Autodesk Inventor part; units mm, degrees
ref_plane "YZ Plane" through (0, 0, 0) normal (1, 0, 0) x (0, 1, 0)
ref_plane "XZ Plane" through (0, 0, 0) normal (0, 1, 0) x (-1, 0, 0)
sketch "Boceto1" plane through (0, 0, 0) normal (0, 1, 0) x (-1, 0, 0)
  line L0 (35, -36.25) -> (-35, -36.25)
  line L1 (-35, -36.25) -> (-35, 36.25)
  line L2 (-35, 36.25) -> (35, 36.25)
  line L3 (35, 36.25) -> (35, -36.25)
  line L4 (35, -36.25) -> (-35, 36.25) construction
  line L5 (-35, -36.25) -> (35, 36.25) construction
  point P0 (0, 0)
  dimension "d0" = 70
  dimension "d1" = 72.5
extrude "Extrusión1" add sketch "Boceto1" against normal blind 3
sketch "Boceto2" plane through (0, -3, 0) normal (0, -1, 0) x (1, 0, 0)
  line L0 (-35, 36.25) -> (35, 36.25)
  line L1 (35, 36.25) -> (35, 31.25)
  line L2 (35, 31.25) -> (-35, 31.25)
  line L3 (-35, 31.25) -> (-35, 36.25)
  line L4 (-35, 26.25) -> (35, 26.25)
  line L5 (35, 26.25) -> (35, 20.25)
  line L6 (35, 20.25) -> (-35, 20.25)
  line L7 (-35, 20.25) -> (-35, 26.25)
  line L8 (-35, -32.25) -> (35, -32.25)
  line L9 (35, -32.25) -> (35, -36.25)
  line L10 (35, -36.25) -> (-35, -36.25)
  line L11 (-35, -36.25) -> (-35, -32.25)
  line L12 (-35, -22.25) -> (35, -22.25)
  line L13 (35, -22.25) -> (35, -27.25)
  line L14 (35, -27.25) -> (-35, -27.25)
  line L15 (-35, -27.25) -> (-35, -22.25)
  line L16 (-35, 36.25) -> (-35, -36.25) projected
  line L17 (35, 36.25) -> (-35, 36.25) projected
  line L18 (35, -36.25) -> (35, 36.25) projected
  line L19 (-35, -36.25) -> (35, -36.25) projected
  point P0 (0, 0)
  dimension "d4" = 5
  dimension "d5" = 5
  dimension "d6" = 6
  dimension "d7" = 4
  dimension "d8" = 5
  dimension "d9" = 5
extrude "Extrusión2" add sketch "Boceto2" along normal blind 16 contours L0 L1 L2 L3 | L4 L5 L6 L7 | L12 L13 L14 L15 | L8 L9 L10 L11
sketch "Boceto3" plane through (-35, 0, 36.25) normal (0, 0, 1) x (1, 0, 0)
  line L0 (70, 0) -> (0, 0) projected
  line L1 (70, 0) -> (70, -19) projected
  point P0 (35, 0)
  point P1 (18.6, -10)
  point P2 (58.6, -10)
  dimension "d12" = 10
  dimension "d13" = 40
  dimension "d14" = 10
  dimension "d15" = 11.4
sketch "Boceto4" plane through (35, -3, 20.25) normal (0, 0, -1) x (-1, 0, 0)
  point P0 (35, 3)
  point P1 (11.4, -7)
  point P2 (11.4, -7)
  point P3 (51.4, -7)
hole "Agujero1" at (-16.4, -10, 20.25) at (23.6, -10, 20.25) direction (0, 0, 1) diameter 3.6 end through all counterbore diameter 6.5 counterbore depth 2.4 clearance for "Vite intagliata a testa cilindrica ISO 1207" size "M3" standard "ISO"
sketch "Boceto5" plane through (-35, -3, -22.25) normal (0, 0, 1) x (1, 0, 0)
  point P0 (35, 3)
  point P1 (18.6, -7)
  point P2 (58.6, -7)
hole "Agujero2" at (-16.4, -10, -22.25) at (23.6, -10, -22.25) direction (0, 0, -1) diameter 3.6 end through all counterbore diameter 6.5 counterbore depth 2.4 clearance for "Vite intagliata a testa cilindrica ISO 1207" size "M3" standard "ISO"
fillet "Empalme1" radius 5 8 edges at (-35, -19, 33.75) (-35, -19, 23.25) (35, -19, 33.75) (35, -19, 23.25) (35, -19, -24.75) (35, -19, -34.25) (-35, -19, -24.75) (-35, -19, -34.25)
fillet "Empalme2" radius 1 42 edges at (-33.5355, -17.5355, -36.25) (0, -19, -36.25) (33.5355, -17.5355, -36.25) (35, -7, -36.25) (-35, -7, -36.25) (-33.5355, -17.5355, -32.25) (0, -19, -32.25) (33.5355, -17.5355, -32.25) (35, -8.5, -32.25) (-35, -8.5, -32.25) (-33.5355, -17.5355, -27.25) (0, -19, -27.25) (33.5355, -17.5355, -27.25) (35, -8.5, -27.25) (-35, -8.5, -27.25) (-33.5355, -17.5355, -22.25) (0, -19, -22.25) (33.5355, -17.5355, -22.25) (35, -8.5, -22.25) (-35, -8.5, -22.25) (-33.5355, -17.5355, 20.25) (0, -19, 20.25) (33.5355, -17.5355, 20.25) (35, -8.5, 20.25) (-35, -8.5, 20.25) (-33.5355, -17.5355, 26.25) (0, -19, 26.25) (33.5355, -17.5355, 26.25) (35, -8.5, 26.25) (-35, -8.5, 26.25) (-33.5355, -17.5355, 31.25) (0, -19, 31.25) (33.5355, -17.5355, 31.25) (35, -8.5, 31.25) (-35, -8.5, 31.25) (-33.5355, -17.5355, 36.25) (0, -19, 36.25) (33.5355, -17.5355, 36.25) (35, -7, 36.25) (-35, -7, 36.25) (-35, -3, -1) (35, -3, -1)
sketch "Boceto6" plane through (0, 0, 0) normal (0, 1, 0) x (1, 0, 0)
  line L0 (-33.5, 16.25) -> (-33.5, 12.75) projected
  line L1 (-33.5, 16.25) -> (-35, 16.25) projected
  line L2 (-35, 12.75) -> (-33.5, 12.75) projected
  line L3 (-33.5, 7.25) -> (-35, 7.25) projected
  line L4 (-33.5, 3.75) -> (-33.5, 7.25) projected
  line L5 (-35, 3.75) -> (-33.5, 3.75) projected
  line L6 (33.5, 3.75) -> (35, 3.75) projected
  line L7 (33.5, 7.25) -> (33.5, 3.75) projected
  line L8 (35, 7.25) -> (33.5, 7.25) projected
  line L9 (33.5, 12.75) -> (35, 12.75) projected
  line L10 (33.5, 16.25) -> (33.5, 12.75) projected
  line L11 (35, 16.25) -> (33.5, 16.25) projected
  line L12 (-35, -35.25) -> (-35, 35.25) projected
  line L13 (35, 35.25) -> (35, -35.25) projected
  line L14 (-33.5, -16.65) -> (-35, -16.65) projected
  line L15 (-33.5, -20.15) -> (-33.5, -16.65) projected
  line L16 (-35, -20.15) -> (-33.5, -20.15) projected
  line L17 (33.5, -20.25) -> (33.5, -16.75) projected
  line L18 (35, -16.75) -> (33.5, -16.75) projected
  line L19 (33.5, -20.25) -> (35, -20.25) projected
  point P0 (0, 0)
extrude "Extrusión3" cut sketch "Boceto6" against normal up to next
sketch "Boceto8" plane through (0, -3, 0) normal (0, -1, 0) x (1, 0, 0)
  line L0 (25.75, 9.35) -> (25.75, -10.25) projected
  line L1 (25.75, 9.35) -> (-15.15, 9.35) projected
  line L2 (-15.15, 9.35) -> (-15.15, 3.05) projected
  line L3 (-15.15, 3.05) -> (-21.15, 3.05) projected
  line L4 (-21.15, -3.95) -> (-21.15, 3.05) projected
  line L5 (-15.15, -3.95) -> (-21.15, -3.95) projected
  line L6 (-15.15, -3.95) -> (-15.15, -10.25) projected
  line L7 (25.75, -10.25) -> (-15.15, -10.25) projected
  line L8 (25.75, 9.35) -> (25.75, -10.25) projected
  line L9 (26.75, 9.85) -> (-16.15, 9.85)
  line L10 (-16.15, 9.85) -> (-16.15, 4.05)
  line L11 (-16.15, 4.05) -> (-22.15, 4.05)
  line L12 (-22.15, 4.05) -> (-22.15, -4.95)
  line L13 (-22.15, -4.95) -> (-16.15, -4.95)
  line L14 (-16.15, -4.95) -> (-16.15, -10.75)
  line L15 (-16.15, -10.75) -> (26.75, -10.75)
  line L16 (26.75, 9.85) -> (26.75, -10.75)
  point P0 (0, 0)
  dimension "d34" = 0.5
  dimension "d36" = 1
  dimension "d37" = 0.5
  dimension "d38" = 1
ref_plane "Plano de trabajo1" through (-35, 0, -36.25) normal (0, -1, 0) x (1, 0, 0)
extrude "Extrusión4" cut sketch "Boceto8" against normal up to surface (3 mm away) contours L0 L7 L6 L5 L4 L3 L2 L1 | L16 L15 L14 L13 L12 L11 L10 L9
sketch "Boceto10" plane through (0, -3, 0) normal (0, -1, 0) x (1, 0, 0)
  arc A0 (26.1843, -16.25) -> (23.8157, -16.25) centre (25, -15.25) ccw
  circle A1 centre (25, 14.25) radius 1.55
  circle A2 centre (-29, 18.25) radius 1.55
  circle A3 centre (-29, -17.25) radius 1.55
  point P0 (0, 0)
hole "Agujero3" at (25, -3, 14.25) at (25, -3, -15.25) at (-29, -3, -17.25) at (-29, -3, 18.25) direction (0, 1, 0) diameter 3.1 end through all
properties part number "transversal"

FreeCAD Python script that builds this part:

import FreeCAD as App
import Part
import Sketcher

V = App.Vector


def edges_at(feature, points):
    """Names of the edges that pass closest to the given points."""
    edges = feature.Shape.Edges
    near = lambda p: min(range(len(edges)), key=lambda i: edges[i].distToShape(Part.Vertex(*p))[0])
    return sorted({f"Edge{near(p) + 1}" for p in points})

doc = App.newDocument("Part")
body = doc.addObject("PartDesign::Body", "Body")

# Sketch on XZ plane
sketch1 = doc.addObject("Sketcher::SketchObject", "Sketch")
body.addObject(sketch1)
sketch1.AttachmentSupport = (doc.XZ_Plane, [""])
sketch1.MapMode = "FlatFace"
sketch1.addGeometry([
    Part.LineSegment(V(35, -36, 0), V(-35, -36, 0)),
    Part.LineSegment(V(-35, -36, 0), V(-35, 36, 0)),
    Part.LineSegment(V(-35, 36, 0), V(35, 36, 0)),
    Part.LineSegment(V(35, 36, 0), V(35, -36, 0)),
], False)
sketch1.addConstraint([
    Sketcher.Constraint("Coincident", 0, 2, 1, 1),
    Sketcher.Constraint("Coincident", 1, 2, 2, 1),
    Sketcher.Constraint("Coincident", 2, 2, 3, 1),
    Sketcher.Constraint("Coincident", 3, 2, 0, 1),
    Sketcher.Constraint("Horizontal", 0),
    Sketcher.Constraint("Vertical", 1),
    Sketcher.Constraint("Horizontal", 2),
    Sketcher.Constraint("Vertical", 3),
    Sketcher.Constraint("Symmetric", 0, 2, 2, 2, -1, 1),
    Sketcher.Constraint("DistanceX", 0, 2, 0, 1, 70.0),
    Sketcher.Constraint("DistanceY", 1, 1, 1, 2, 72.5),
])
pad1 = doc.addObject("PartDesign::Pad", "Pad")
body.addObject(pad1)
pad1.Profile = sketch1
pad1.Length = 3

# Sketch on XZ plane
sketch2 = doc.addObject("Sketcher::SketchObject", "Sketch001")
body.addObject(sketch2)
sketch2.AttachmentSupport = (doc.XZ_Plane, [""])
sketch2.MapMode = "FlatFace"
sketch2.AttachmentOffset = App.Placement(V(0, 0, 3), App.Rotation())
sketch2.addGeometry([
    Part.LineSegment(V(35, 36.2, 0), V(-35, 36.2, 0)),  # 0
    Part.LineSegment(V(-35, 36.2, 0), V(-35, 31.2, 0)),  # 1
    Part.LineSegment(V(-35, 31.2, 0), V(35, 31.2, 0)),  # 2
    Part.LineSegment(V(35, 31.2, 0), V(35, 36.2, 0)),  # 3
    Part.LineSegment(V(35, 26.2, 0), V(-35, 26.2, 0)),  # 4
    Part.LineSegment(V(-35, 26.2, 0), V(-35, 20.2, 0)),  # 5
    Part.LineSegment(V(-35, 20.2, 0), V(35, 20.2, 0)),  # 6
    Part.LineSegment(V(35, 20.2, 0), V(35, 26.2, 0)),  # 7
    Part.LineSegment(V(35, -22.2, 0), V(-35, -22.2, 0)),  # 8
    Part.LineSegment(V(-35, -22.2, 0), V(-35, -27.2, 0)),  # 9
    Part.LineSegment(V(-35, -27.2, 0), V(35, -27.2, 0)),  # 10
    Part.LineSegment(V(35, -27.2, 0), V(35, -22.2, 0)),  # 11
    Part.LineSegment(V(35, -32.2, 0), V(-35, -32.2, 0)),  # 12
    Part.LineSegment(V(-35, -32.2, 0), V(-35, -36.2, 0)),  # 13
    Part.LineSegment(V(-35, -36.2, 0), V(35, -36.2, 0)),  # 14
    Part.LineSegment(V(35, -36.2, 0), V(35, -32.2, 0)),  # 15
], False)
sketch2.addConstraint([
    Sketcher.Constraint("Coincident", 0, 2, 1, 1),
    Sketcher.Constraint("Coincident", 1, 2, 2, 1),
    Sketcher.Constraint("Coincident", 2, 2, 3, 1),
    Sketcher.Constraint("Coincident", 3, 2, 0, 1),
    Sketcher.Constraint("Coincident", 4, 2, 5, 1),
    Sketcher.Constraint("Coincident", 5, 2, 6, 1),
    Sketcher.Constraint("Coincident", 6, 2, 7, 1),
    Sketcher.Constraint("Coincident", 7, 2, 4, 1),
    Sketcher.Constraint("Coincident", 8, 2, 9, 1),
    Sketcher.Constraint("Coincident", 9, 2, 10, 1),
    Sketcher.Constraint("Coincident", 10, 2, 11, 1),
    Sketcher.Constraint("Coincident", 11, 2, 8, 1),
    Sketcher.Constraint("Coincident", 12, 2, 13, 1),
    Sketcher.Constraint("Coincident", 13, 2, 14, 1),
    Sketcher.Constraint("Coincident", 14, 2, 15, 1),
    Sketcher.Constraint("Coincident", 15, 2, 12, 1),
    Sketcher.Constraint("Horizontal", 0),
    Sketcher.Constraint("Vertical", 1),
    Sketcher.Constraint("Horizontal", 2),
    Sketcher.Constraint("Vertical", 3),
    Sketcher.Constraint("Horizontal", 4),
    Sketcher.Constraint("Vertical", 5),
    Sketcher.Constraint("Horizontal", 6),
    Sketcher.Constraint("Vertical", 7),
    Sketcher.Constraint("Horizontal", 8),
    Sketcher.Constraint("Vertical", 9),
    Sketcher.Constraint("Horizontal", 10),
    Sketcher.Constraint("Vertical", 11),
    Sketcher.Constraint("Horizontal", 12),
    Sketcher.Constraint("Vertical", 13),
    Sketcher.Constraint("Horizontal", 14),
    Sketcher.Constraint("Vertical", 15),
    Sketcher.Constraint("Symmetric", 3, 2, 13, 2, -1, 1),
    Sketcher.Constraint("Vertical", 1, 2, 4, 2),
    Sketcher.Constraint("Vertical", 3, 2, 6, 2),
    Sketcher.Constraint("Vertical", 5, 2, 8, 2),
    Sketcher.Constraint("Vertical", 7, 2, 10, 2),
    Sketcher.Constraint("Vertical", 9, 2, 12, 2),
    Sketcher.Constraint("Vertical", 11, 2, 14, 2),
    Sketcher.Constraint("Equal", 3, 9),
    Sketcher.Constraint("DistanceY", 1, 2, 1, 1, 5.0),
    Sketcher.Constraint("DistanceY", 5, 2, 5, 1, 6.0),
    Sketcher.Constraint("DistanceY", 13, 2, 13, 1, 4.0),
    Sketcher.Constraint("DistanceY", 4, 2, 1, 2, 5.0),
    Sketcher.Constraint("DistanceY", 12, 2, 9, 2, 5.0),
    Sketcher.Constraint("DistanceX", 0, 2, 0, 1, 70.0),
    Sketcher.Constraint("DistanceY", 8, 2, 5, 2, 42.5),
])
pad2 = doc.addObject("PartDesign::Pad", "Pad001")
body.addObject(pad2)
pad2.Profile = sketch2
pad2.Length = 16

# Sketch on XY plane
sketch3 = doc.addObject("Sketcher::SketchObject", "Sketch002")
body.addObject(sketch3)
sketch3.AttachmentSupport = (doc.XY_Plane, [""])
sketch3.MapMode = "FlatFace"
sketch3.AttachmentOffset = App.Placement(V(0, 0, 20.25), App.Rotation())
sketch3.addGeometry([
    Part.Circle(V(-16.4, -10, 0), V(0, 0, 1), 1.8),
    Part.Circle(V(23.6, -10, 0), V(0, 0, 1), 1.8),
], False)
sketch3.addConstraint([
    Sketcher.Constraint("Equal", 0, 1),
    Sketcher.Constraint("Horizontal", 0, 3, 1, 3),
    Sketcher.Constraint("Diameter", 0, 3.6),
    Sketcher.Constraint("DistanceY", 0, 3, -1, 1, 10.0),
    Sketcher.Constraint("DistanceX", 0, 3, 1, 3, 40.0),
    Sketcher.Constraint("DistanceX", 0, 3, -1, 1, 16.4),
])
doc.recompute()
hole = doc.addObject("PartDesign::Hole", "Hole")
body.addObject(hole)
hole.Profile = sketch3
hole.ThreadType = "None"
hole.Diameter = 3.6
hole.DepthType = "ThroughAll"
hole.HoleCutType = "Counterbore"
hole.HoleCutDiameter = 6.5
hole.HoleCutDepth = 2.4
hole.Reversed = True

# Sketch on XY plane
sketch4 = doc.addObject("Sketcher::SketchObject", "Sketch003")
body.addObject(sketch4)
sketch4.AttachmentSupport = (doc.XY_Plane, [""])
sketch4.MapMode = "FlatFace"
sketch4.AttachmentOffset = App.Placement(V(0, 0, -22.25), App.Rotation())
sketch4.addGeometry([
    Part.Circle(V(-16.4, -10, 0), V(0, 0, 1), 1.8),
    Part.Circle(V(23.6, -10, 0), V(0, 0, 1), 1.8),
], False)
sketch4.addConstraint([
    Sketcher.Constraint("Equal", 0, 1),
    Sketcher.Constraint("Horizontal", 0, 3, 1, 3),
    Sketcher.Constraint("Diameter", 0, 3.6),
    Sketcher.Constraint("DistanceY", 0, 3, -1, 1, 10.0),
    Sketcher.Constraint("DistanceX", 0, 3, 1, 3, 40.0),
    Sketcher.Constraint("DistanceX", 0, 3, -1, 1, 16.4),
])
doc.recompute()
hole2 = doc.addObject("PartDesign::Hole", "Hole001")
body.addObject(hole2)
hole2.Profile = sketch4
hole2.ThreadType = "None"
hole2.Diameter = 3.6
hole2.DepthType = "ThroughAll"
hole2.HoleCutType = "Counterbore"
hole2.HoleCutDiameter = 6.5
hole2.HoleCutDepth = 2.4
doc.recompute()

fillet = doc.addObject("PartDesign::Fillet", "Fillet")
body.addObject(fillet)
fillet.Base = (hole2, edges_at(hole2, [
    (-35, -19, 33.75),
    (-35, -19, 23.25),
    (35, -19, 33.75),
    (35, -19, 23.25),
    (35, -19, -24.75),
    (35, -19, -34.25),
    (-35, -19, -24.75),
    (-35, -19, -34.25),
]))
fillet.Radius = 5
doc.recompute()

fillet2 = doc.addObject("PartDesign::Fillet", "Fillet001")
body.addObject(fillet2)
fillet2.Base = (fillet, edges_at(fillet, [
    (-33.535, -17.535, -36.25),
    (0, -19, -36.25),
    (33.535, -17.535, -36.25),
    (35, -7, -36.25),
    (-35, -7, -36.25),
    (-33.535, -17.535, -32.25),
    (0, -19, -32.25),
    (33.535, -17.535, -32.25),
    (35, -8.5, -32.25),
    (-35, -8.5, -32.25),
    (-33.535, -17.535, -27.25),
    (0, -19, -27.25),
    (33.535, -17.535, -27.25),
    (35, -8.5, -27.25),
    (-35, -8.5, -27.25),
    (-33.535, -17.535, -22.25),
    (0, -19, -22.25),
    (33.535, -17.535, -22.25),
    (35, -8.5, -22.25),
    (-35, -8.5, -22.25),
    (-33.535, -17.535, 20.25),
    (0, -19, 20.25),
    (33.535, -17.535, 20.25),
    (35, -8.5, 20.25),
    (-35, -8.5, 20.25),
    (-33.535, -17.535, 26.25),
    (0, -19, 26.25),
    (33.535, -17.535, 26.25),
    (35, -8.5, 26.25),
    (-35, -8.5, 26.25),
    (-33.535, -17.535, 31.25),
    (0, -19, 31.25),
    (33.535, -17.535, 31.25),
    (35, -8.5, 31.25),
    (-35, -8.5, 31.25),
    (-33.535, -17.535, 36.25),
    (0, -19, 36.25),
    (33.535, -17.535, 36.25),
    (35, -7, 36.25),
    (-35, -7, 36.25),
    (-35, -3, -1),
    (35, -3, -1),
]))
fillet2.Radius = 1

# Sketch on XZ plane
sketch5 = doc.addObject("Sketcher::SketchObject", "Sketch004")
body.addObject(sketch5)
sketch5.AttachmentSupport = (doc.XZ_Plane, [""])
sketch5.MapMode = "FlatFace"
sketch5.addGeometry([
    Part.LineSegment(V(-33.5, 16.6, 0), V(-35, 16.6, 0)),  # 0
    Part.LineSegment(V(-35, 16.6, 0), V(-35, 20.1, 0)),  # 1
    Part.LineSegment(V(-35, 20.1, 0), V(-33.5, 20.1, 0)),  # 2
    Part.LineSegment(V(-33.5, 20.1, 0), V(-33.5, 16.6, 0)),  # 3
    Part.LineSegment(V(-33.5, -7.2, 0), V(-35, -7.2, 0)),  # 4
    Part.LineSegment(V(-35, -7.2, 0), V(-35, -3.8, 0)),  # 5
    Part.LineSegment(V(-35, -3.8, 0), V(-33.5, -3.8, 0)),  # 6
    Part.LineSegment(V(-33.5, -3.8, 0), V(-33.5, -7.2, 0)),  # 7
    Part.LineSegment(V(-33.5, -12.8, 0), V(-33.5, -16.2, 0)),  # 8
    Part.LineSegment(V(-33.5, -16.2, 0), V(-35, -16.2, 0)),  # 9
    Part.LineSegment(V(-35, -16.2, 0), V(-35, -12.8, 0)),  # 10
    Part.LineSegment(V(-35, -12.8, 0), V(-33.5, -12.8, 0)),  # 11
    Part.LineSegment(V(33.5, -7.2, 0), V(33.5, -3.8, 0)),  # 12
    Part.LineSegment(V(33.5, -3.8, 0), V(35, -3.8, 0)),  # 13
    Part.LineSegment(V(35, -3.8, 0), V(35, -7.2, 0)),  # 14
    Part.LineSegment(V(35, -7.2, 0), V(33.5, -7.2, 0)),  # 15
    Part.LineSegment(V(33.5, -12.8, 0), V(35, -12.8, 0)),  # 16
    Part.LineSegment(V(35, -12.8, 0), V(35, -16.2, 0)),  # 17
    Part.LineSegment(V(35, -16.2, 0), V(33.5, -16.2, 0)),  # 18
    Part.LineSegment(V(33.5, -16.2, 0), V(33.5, -12.8, 0)),  # 19
    Part.LineSegment(V(35, 20.2, 0), V(35, 16.8, 0)),  # 20
    Part.LineSegment(V(35, 16.8, 0), V(33.5, 16.8, 0)),  # 21
    Part.LineSegment(V(33.5, 16.8, 0), V(33.5, 20.2, 0)),  # 22
    Part.LineSegment(V(33.5, 20.2, 0), V(35, 20.2, 0)),  # 23
], False)
sketch5.addConstraint([
    Sketcher.Constraint("Coincident", 0, 2, 1, 1),
    Sketcher.Constraint("Coincident", 1, 2, 2, 1),
    Sketcher.Constraint("Coincident", 2, 2, 3, 1),
    Sketcher.Constraint("Coincident", 3, 2, 0, 1),
    Sketcher.Constraint("Coincident", 4, 2, 5, 1),
    Sketcher.Constraint("Coincident", 5, 2, 6, 1),
    Sketcher.Constraint("Coincident", 6, 2, 7, 1),
    Sketcher.Constraint("Coincident", 7, 2, 4, 1),
    Sketcher.Constraint("Coincident", 8, 2, 9, 1),
    Sketcher.Constraint("Coincident", 9, 2, 10, 1),
    Sketcher.Constraint("Coincident", 10, 2, 11, 1),
    Sketcher.Constraint("Coincident", 11, 2, 8, 1),
    Sketcher.Constraint("Coincident", 12, 2, 13, 1),
    Sketcher.Constraint("Coincident", 13, 2, 14, 1),
    Sketcher.Constraint("Coincident", 14, 2, 15, 1),
    Sketcher.Constraint("Coincident", 15, 2, 12, 1),
    Sketcher.Constraint("Coincident", 16, 2, 17, 1),
    Sketcher.Constraint("Coincident", 17, 2, 18, 1),
    Sketcher.Constraint("Coincident", 18, 2, 19, 1),
    Sketcher.Constraint("Coincident", 19, 2, 16, 1),
    Sketcher.Constraint("Coincident", 20, 2, 21, 1),
    Sketcher.Constraint("Coincident", 21, 2, 22, 1),
    Sketcher.Constraint("Coincident", 22, 2, 23, 1),
    Sketcher.Constraint("Coincident", 23, 2, 20, 1),
    Sketcher.Constraint("Horizontal", 0),
    Sketcher.Constraint("Vertical", 1),
    Sketcher.Constraint("Horizontal", 2),
    Sketcher.Constraint("Vertical", 3),
    Sketcher.Constraint("Horizontal", 4),
    Sketcher.Constraint("Vertical", 5),
    Sketcher.Constraint("Horizontal", 6),
    Sketcher.Constraint("Vertical", 7),
    Sketcher.Constraint("Vertical", 8),
    Sketcher.Constraint("Horizontal", 9),
    Sketcher.Constraint("Vertical", 10),
    Sketcher.Constraint("Horizontal", 11),
    Sketcher.Constraint("Vertical", 12),
    Sketcher.Constraint("Horizontal", 13),
    Sketcher.Constraint("Vertical", 14),
    Sketcher.Constraint("Horizontal", 15),
    Sketcher.Constraint("Horizontal", 16),
    Sketcher.Constraint("Vertical", 17),
    Sketcher.Constraint("Horizontal", 18),
    Sketcher.Constraint("Vertical", 19),
    Sketcher.Constraint("Vertical", 20),
    Sketcher.Constraint("Horizontal", 21),
    Sketcher.Constraint("Vertical", 22),
    Sketcher.Constraint("Horizontal", 23),
    Sketcher.Constraint("Symmetric", 6, 2, 12, 2, -2),
    Sketcher.Constraint("Symmetric", 4, 2, 14, 2, -2),
    Sketcher.Constraint("Symmetric", 10, 2, 16, 2, -2),
    Sketcher.Constraint("Symmetric", 8, 2, 18, 2, -2),
    Sketcher.Constraint("Vertical", 1, 2, 4, 2),
    Sketcher.Constraint("Vertical", 3, 2, 6, 2),
    Sketcher.Constraint("Vertical", 7, 2, 8, 2),
    Sketcher.Constraint("Vertical", 5, 2, 9, 2),
    Sketcher.Constraint("Vertical", 17, 2, 20, 2),
    Sketcher.Constraint("Vertical", 19, 2, 21, 2),
    Sketcher.Constraint("Equal", 3, 5),
    Sketcher.Constraint("Equal", 7, 8),
    Sketcher.Constraint("Equal", 19, 20),
    Sketcher.Constraint("DistanceX", 0, 2, 0, 1, 1.5),
    Sketcher.Constraint("DistanceY", 1, 1, 1, 2, 3.5),
    Sketcher.Constraint("DistanceX", 0, 2, -1, 1, 35.0),
    Sketcher.Constraint("DistanceY", 8, 2, 7, 2, 9.0),
    Sketcher.Constraint("DistanceY", 14, 2, 20, 2, 24.0),
    Sketcher.Constraint("DistanceY", 4, 2, 0, 2, 23.9),
    Sketcher.Constraint("DistanceY", -1, 1, 0, 2, 16.65),
])
pocket1 = doc.addObject("PartDesign::Pocket", "Pocket")
body.addObject(pocket1)
pocket1.Profile = sketch5
pocket1.Type = "UpToFirst"
pocket1.Reversed = True

# Sketch on XZ plane
sketch6 = doc.addObject("Sketcher::SketchObject", "Sketch005")
body.addObject(sketch6)
sketch6.AttachmentSupport = (doc.XZ_Plane, [""])
sketch6.MapMode = "FlatFace"
sketch6.AttachmentOffset = App.Placement(V(0, 0, 3), App.Rotation())
sketch6.addGeometry([
    Part.LineSegment(V(27, -11, 0), V(27, 10, 0)),  # 0
    Part.LineSegment(V(27, 10, 0), V(-16, 10, 0)),  # 1
    Part.LineSegment(V(-16, 10, 0), V(-16, 4, 0)),  # 2
    Part.LineSegment(V(-16, 4, 0), V(-22, 4, 0)),  # 3
    Part.LineSegment(V(-22, 4, 0), V(-22, -5, 0)),  # 4
    Part.LineSegment(V(-22, -5, 0), V(-16, -5, 0)),  # 5
    Part.LineSegment(V(-16, -5, 0), V(-16, -11, 0)),  # 6
    Part.LineSegment(V(-16, -11, 0), V(27, -11, 0)),  # 7
], False)
sketch6.addConstraint([
    Sketcher.Constraint("Coincident", 0, 2, 1, 1),
    Sketcher.Constraint("Coincident", 1, 2, 2, 1),
    Sketcher.Constraint("Coincident", 2, 2, 3, 1),
    Sketcher.Constraint("Coincident", 3, 2, 4, 1),
    Sketcher.Constraint("Coincident", 4, 2, 5, 1),
    Sketcher.Constraint("Coincident", 5, 2, 6, 1),
    Sketcher.Constraint("Coincident", 6, 2, 7, 1),
    Sketcher.Constraint("Coincident", 7, 2, 0, 1),
    Sketcher.Constraint("Vertical", 0),
    Sketcher.Constraint("Horizontal", 1),
    Sketcher.Constraint("Vertical", 2),
    Sketcher.Constraint("Horizontal", 3),
    Sketcher.Constraint("Vertical", 4),
    Sketcher.Constraint("Horizontal", 5),
    Sketcher.Constraint("Vertical", 6),
    Sketcher.Constraint("Horizontal", 7),
    Sketcher.Constraint("Vertical", 2, 2, 5, 2),
    Sketcher.Constraint("Equal", 2, 6),
    Sketcher.Constraint("DistanceX", 3, 2, 3, 1, 6.0),
    Sketcher.Constraint("DistanceY", 4, 2, 4, 1, 9.0),
    Sketcher.Constraint("DistanceX", 1, 2, 1, 1, 42.9),
    Sketcher.Constraint("DistanceY", 0, 1, 0, 2, 20.6),
    Sketcher.Constraint("DistanceX", -1, 1, 0, 2, 26.75),
    Sketcher.Constraint("DistanceY", -1, 1, 0, 2, 9.85),
])
pocket2 = doc.addObject("PartDesign::Pocket", "Pocket001")
body.addObject(pocket2)
pocket2.Profile = sketch6
pocket2.Length = 3

# Sketch on XZ plane
sketch7 = doc.addObject("Sketcher::SketchObject", "Sketch006")
body.addObject(sketch7)
sketch7.AttachmentSupport = (doc.XZ_Plane, [""])
sketch7.MapMode = "FlatFace"
sketch7.AttachmentOffset = App.Placement(V(0, 0, 3), App.Rotation())
sketch7.addGeometry([
    Part.Circle(V(25, 14.2, 0), V(0, 0, 1), 1.6),
    Part.Circle(V(25, -15.2, 0), V(0, 0, 1), 1.6),
    Part.Circle(V(-29, -17.2, 0), V(0, 0, 1), 1.6),
    Part.Circle(V(-29, 18.2, 0), V(0, 0, 1), 1.6),
], False)
sketch7.addConstraint([
    Sketcher.Constraint("Equal", 0, 1),
    Sketcher.Constraint("Equal", 1, 2),
    Sketcher.Constraint("Equal", 2, 3),
    Sketcher.Constraint("Vertical", 0, 3, 1, 3),
    Sketcher.Constraint("Vertical", 2, 3, 3, 3),
    Sketcher.Constraint("Diameter", 0, 3.1),
    Sketcher.Constraint("DistanceX", -1, 1, 0, 3, 25.0),
    Sketcher.Constraint("DistanceX", 2, 3, -1, 1, 29.0),
    Sketcher.Constraint("DistanceY", 2, 3, 1, 3, 2.0),
    Sketcher.Constraint("DistanceY", 0, 3, 3, 3, 4.0),
    Sketcher.Constraint("DistanceY", 1, 3, 0, 3, 29.5),
    Sketcher.Constraint("DistanceY", -1, 1, 0, 3, 14.25),
])
doc.recompute()
hole3 = doc.addObject("PartDesign::Hole", "Hole002")
body.addObject(hole3)
hole3.Profile = sketch7
hole3.ThreadType = "None"
hole3.Diameter = 3.1
hole3.DepthType = "ThroughAll"

doc.recompute()
